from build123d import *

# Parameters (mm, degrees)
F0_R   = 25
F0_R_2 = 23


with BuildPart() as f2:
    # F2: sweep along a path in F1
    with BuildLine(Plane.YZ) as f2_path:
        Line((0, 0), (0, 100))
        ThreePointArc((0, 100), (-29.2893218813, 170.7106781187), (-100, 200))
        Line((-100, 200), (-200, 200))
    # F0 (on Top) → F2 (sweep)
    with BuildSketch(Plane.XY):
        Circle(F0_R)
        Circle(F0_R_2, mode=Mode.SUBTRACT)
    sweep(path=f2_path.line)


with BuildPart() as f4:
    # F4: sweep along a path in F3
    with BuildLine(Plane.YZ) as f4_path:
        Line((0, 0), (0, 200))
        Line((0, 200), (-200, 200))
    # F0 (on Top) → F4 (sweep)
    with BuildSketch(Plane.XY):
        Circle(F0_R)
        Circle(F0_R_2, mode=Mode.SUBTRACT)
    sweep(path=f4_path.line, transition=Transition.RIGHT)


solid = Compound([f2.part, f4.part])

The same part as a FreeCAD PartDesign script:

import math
import FreeCAD as App
import Part
import Sketcher

doc = App.newDocument("Part")
body = doc.addObject("PartDesign::Body", "Body")

sketch1 = doc.addObject("Sketcher::SketchObject", "Sketch")
body.addObject(sketch1)
sketch1.AttachmentSupport = (doc.XY_Plane, [""])
sketch1.MapMode = "FlatFace"
sketch1.addGeometry([
    Part.Circle(App.Vector(0, 0, 0), App.Vector(0, 0, 1), 25),
    Part.Circle(App.Vector(0, 0, 0), App.Vector(0, 0, 1), 23),
], False)
sketch1.addConstraint([
    Sketcher.Constraint("Coincident", 0, 3, -1, 1),
    Sketcher.Constraint("Coincident", 1, 3, -1, 1),
    Sketcher.Constraint("Diameter", 0, 50.0),
    Sketcher.Constraint("Diameter", 1, 46.0),
])

sketch2 = doc.addObject("Sketcher::SketchObject", "Sketch001")
body.addObject(sketch2)
sketch2.AttachmentSupport = (doc.YZ_Plane, [""])
sketch2.MapMode = "FlatFace"
sketch2.addGeometry([
    Part.LineSegment(App.Vector(0, 0, 0), App.Vector(0, 100, 0)),
    Part.ArcOfCircle(Part.Circle(App.Vector(-100, 100, 0), App.Vector(0, 0, 1), 100), math.radians(0), math.radians(90)),
    Part.LineSegment(App.Vector(-100, 200, 0), App.Vector(-200, 200, 0)),
], False)
sketch2.addConstraint([
    Sketcher.Constraint("Tangent", 0, 2, 1, 1),
    Sketcher.Constraint("Tangent", 1, 2, 2, 1),
    Sketcher.Constraint("Vertical", 0),
    Sketcher.Constraint("Horizontal", 2),
    Sketcher.Constraint("Coincident", 0, 1, -1, 1),
    Sketcher.Constraint("Equal", 2, 0),
    Sketcher.Constraint("Radius", 1, 100.0),
    Sketcher.Constraint("DistanceX", 2, 2, 2, 1, 100.0),
])
doc.recompute()

additivepipe = doc.addObject("PartDesign::AdditivePipe", "AdditivePipe")
body.addObject(additivepipe)
additivepipe.Profile = sketch1
additivepipe.Spine = (sketch2, ["Edge1", "Edge2", "Edge3"])
body2 = doc.addObject("PartDesign::Body", "Body001")

sketch3 = doc.addObject("Sketcher::SketchObject", "Sketch002")
body2.addObject(sketch3)
sketch3.AttachmentSupport = (doc.getObject("XY_Plane001"), [""])
sketch3.MapMode = "FlatFace"
sketch3.addGeometry([
    Part.Circle(App.Vector(0, 0, 0), App.Vector(0, 0, 1), 25),
    Part.Circle(App.Vector(0, 0, 0), App.Vector(0, 0, 1), 23),
], False)
sketch3.addConstraint([
    Sketcher.Constraint("Coincident", 0, 3, -1, 1),
    Sketcher.Constraint("Coincident", 1, 3, -1, 1),
    Sketcher.Constraint("Diameter", 0, 50.0),
    Sketcher.Constraint("Diameter", 1, 46.0),
])

sketch4 = doc.addObject("Sketcher::SketchObject", "Sketch003")
body2.addObject(sketch4)
sketch4.AttachmentSupport = (doc.getObject("YZ_Plane001"), [""])
sketch4.MapMode = "FlatFace"
sketch4.addGeometry([
    Part.LineSegment(App.Vector(0, 0, 0), App.Vector(0, 200, 0)),
    Part.LineSegment(App.Vector(0, 200, 0), App.Vector(-200, 200, 0)),
], False)
sketch4.addConstraint([
    Sketcher.Constraint("Coincident", 0, 2, 1, 1),
    Sketcher.Constraint("Vertical", 0),
    Sketcher.Constraint("Horizontal", 1),
    Sketcher.Constraint("Coincident", 0, 1, -1, 1),
    Sketcher.Constraint("Equal", 1, 0),
    Sketcher.Constraint("DistanceX", 1, 2, 1, 1, 200.0),
])
doc.recompute()

additivepipe2 = doc.addObject("PartDesign::AdditivePipe", "AdditivePipe001")
body2.addObject(additivepipe2)
additivepipe2.Profile = sketch3
additivepipe2.Spine = (sketch4, ["Edge1", "Edge2"])
additivepipe2.Transition = "Right corner"

doc.recompute()
